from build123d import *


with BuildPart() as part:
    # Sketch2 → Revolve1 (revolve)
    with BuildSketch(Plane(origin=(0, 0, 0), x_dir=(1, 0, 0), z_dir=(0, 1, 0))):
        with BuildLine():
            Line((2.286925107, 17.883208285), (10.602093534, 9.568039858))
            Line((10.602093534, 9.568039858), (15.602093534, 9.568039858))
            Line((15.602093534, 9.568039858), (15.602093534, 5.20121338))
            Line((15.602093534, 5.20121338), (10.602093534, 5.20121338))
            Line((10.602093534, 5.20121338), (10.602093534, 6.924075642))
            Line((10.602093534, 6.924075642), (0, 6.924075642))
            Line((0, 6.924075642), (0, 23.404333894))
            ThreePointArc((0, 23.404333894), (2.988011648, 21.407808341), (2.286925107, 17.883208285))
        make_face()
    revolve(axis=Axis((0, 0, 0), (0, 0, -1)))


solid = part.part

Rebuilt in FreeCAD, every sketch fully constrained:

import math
import FreeCAD as App
import Part
import Sketcher
Q = App.Units.Quantity

doc = App.newDocument("Part")
body = doc.addObject("PartDesign::Body", "Body")

# Sketch on XZ plane
sketch1 = body.newObject("Sketcher::SketchObject", "Sketch")
sketch1.AttachmentSupport = (doc.getObject("XZ_Plane"), [""])
sketch1.MapMode = "FlatFace"
sketch1.addGeometry(Part.LineSegment(App.Vector(10.6, -9.6, 0), App.Vector(2.3, -17.9, 0)), False)
sketch1.addGeometry(Part.ArcOfCircle(Part.Circle(App.Vector(0, -20.2, 0), App.Vector(0, 0, 1), 3.2), math.radians(-90), math.radians(45)), False)
sketch1.addGeometry(Part.LineSegment(App.Vector(0, -23.4, 0), App.Vector(0, -6.9, 0)), False)
sketch1.addGeometry(Part.LineSegment(App.Vector(0, -6.9, 0), App.Vector(10.6, -6.9, 0)), False)
sketch1.addGeometry(Part.LineSegment(App.Vector(10.6, -6.9, 0), App.Vector(10.6, -5.2, 0)), False)
sketch1.addGeometry(Part.LineSegment(App.Vector(10.6, -5.2, 0), App.Vector(15.6, -5.2, 0)), False)
sketch1.addGeometry(Part.LineSegment(App.Vector(15.6, -5.2, 0), App.Vector(15.6, -9.6, 0)), False)
sketch1.addGeometry(Part.LineSegment(App.Vector(15.6, -9.6, 0), App.Vector(10.6, -9.6, 0)), False)
sketch1.addConstraint(Sketcher.Constraint("Coincident", 0, 2, 1, 2))
sketch1.addConstraint(Sketcher.Constraint("Coincident", 1, 1, 2, 1))
sketch1.addConstraint(Sketcher.Constraint("Coincident", 2, 2, 3, 1))
sketch1.addConstraint(Sketcher.Constraint("Coincident", 3, 2, 4, 1))
sketch1.addConstraint(Sketcher.Constraint("Coincident", 4, 2, 5, 1))
sketch1.addConstraint(Sketcher.Constraint("Coincident", 5, 2, 6, 1))
sketch1.addConstraint(Sketcher.Constraint("Coincident", 6, 2, 7, 1))
sketch1.addConstraint(Sketcher.Constraint("Coincident", 7, 2, 0, 1))
sketch1.addConstraint(Sketcher.Constraint("Vertical", 2))
sketch1.addConstraint(Sketcher.Constraint("Horizontal", 3))
sketch1.addConstraint(Sketcher.Constraint("Vertical", 4))
sketch1.addConstraint(Sketcher.Constraint("Horizontal", 5))
sketch1.addConstraint(Sketcher.Constraint("Vertical", 6))
sketch1.addConstraint(Sketcher.Constraint("Horizontal", 7))
sketch1.addConstraint(Sketcher.Constraint("PointOnObject", 1, 3, -2))
sketch1.addConstraint(Sketcher.Constraint("PointOnObject", 1, 1, -2))
sketch1.addConstraint(Sketcher.Constraint("Vertical", 4, 2, 7, 2))
sketch1.addConstraint(Sketcher.Constraint("DistanceX", 5, 1, 5, 2, 5.0))
sketch1.addConstraint(Sketcher.Constraint("Angle", 0, Q("-135 deg")))
sketch1.addConstraint(Sketcher.Constraint("Radius", 1, 3.234201))
sketch1.addConstraint(Sketcher.Constraint("DistanceY", 2, 1, 2, 2, 16.480258))
sketch1.addConstraint(Sketcher.Constraint("DistanceX", 3, 1, 3, 2, 10.602094))
sketch1.addConstraint(Sketcher.Constraint("DistanceY", 4, 1, 4, 2, 1.722862))
sketch1.addConstraint(Sketcher.Constraint("DistanceY", 6, 2, 6, 1, 4.366826))
sketch1.addConstraint(Sketcher.Constraint("DistanceY", 0, 2, -1, 1, 17.883208))
revolution = body.newObject("PartDesign::Revolution", "Revolution")
revolution.Profile = sketch1
revolution.ReferenceAxis = (sketch1, ["V_Axis"])
revolution.Angle = 360

doc.recompute()
